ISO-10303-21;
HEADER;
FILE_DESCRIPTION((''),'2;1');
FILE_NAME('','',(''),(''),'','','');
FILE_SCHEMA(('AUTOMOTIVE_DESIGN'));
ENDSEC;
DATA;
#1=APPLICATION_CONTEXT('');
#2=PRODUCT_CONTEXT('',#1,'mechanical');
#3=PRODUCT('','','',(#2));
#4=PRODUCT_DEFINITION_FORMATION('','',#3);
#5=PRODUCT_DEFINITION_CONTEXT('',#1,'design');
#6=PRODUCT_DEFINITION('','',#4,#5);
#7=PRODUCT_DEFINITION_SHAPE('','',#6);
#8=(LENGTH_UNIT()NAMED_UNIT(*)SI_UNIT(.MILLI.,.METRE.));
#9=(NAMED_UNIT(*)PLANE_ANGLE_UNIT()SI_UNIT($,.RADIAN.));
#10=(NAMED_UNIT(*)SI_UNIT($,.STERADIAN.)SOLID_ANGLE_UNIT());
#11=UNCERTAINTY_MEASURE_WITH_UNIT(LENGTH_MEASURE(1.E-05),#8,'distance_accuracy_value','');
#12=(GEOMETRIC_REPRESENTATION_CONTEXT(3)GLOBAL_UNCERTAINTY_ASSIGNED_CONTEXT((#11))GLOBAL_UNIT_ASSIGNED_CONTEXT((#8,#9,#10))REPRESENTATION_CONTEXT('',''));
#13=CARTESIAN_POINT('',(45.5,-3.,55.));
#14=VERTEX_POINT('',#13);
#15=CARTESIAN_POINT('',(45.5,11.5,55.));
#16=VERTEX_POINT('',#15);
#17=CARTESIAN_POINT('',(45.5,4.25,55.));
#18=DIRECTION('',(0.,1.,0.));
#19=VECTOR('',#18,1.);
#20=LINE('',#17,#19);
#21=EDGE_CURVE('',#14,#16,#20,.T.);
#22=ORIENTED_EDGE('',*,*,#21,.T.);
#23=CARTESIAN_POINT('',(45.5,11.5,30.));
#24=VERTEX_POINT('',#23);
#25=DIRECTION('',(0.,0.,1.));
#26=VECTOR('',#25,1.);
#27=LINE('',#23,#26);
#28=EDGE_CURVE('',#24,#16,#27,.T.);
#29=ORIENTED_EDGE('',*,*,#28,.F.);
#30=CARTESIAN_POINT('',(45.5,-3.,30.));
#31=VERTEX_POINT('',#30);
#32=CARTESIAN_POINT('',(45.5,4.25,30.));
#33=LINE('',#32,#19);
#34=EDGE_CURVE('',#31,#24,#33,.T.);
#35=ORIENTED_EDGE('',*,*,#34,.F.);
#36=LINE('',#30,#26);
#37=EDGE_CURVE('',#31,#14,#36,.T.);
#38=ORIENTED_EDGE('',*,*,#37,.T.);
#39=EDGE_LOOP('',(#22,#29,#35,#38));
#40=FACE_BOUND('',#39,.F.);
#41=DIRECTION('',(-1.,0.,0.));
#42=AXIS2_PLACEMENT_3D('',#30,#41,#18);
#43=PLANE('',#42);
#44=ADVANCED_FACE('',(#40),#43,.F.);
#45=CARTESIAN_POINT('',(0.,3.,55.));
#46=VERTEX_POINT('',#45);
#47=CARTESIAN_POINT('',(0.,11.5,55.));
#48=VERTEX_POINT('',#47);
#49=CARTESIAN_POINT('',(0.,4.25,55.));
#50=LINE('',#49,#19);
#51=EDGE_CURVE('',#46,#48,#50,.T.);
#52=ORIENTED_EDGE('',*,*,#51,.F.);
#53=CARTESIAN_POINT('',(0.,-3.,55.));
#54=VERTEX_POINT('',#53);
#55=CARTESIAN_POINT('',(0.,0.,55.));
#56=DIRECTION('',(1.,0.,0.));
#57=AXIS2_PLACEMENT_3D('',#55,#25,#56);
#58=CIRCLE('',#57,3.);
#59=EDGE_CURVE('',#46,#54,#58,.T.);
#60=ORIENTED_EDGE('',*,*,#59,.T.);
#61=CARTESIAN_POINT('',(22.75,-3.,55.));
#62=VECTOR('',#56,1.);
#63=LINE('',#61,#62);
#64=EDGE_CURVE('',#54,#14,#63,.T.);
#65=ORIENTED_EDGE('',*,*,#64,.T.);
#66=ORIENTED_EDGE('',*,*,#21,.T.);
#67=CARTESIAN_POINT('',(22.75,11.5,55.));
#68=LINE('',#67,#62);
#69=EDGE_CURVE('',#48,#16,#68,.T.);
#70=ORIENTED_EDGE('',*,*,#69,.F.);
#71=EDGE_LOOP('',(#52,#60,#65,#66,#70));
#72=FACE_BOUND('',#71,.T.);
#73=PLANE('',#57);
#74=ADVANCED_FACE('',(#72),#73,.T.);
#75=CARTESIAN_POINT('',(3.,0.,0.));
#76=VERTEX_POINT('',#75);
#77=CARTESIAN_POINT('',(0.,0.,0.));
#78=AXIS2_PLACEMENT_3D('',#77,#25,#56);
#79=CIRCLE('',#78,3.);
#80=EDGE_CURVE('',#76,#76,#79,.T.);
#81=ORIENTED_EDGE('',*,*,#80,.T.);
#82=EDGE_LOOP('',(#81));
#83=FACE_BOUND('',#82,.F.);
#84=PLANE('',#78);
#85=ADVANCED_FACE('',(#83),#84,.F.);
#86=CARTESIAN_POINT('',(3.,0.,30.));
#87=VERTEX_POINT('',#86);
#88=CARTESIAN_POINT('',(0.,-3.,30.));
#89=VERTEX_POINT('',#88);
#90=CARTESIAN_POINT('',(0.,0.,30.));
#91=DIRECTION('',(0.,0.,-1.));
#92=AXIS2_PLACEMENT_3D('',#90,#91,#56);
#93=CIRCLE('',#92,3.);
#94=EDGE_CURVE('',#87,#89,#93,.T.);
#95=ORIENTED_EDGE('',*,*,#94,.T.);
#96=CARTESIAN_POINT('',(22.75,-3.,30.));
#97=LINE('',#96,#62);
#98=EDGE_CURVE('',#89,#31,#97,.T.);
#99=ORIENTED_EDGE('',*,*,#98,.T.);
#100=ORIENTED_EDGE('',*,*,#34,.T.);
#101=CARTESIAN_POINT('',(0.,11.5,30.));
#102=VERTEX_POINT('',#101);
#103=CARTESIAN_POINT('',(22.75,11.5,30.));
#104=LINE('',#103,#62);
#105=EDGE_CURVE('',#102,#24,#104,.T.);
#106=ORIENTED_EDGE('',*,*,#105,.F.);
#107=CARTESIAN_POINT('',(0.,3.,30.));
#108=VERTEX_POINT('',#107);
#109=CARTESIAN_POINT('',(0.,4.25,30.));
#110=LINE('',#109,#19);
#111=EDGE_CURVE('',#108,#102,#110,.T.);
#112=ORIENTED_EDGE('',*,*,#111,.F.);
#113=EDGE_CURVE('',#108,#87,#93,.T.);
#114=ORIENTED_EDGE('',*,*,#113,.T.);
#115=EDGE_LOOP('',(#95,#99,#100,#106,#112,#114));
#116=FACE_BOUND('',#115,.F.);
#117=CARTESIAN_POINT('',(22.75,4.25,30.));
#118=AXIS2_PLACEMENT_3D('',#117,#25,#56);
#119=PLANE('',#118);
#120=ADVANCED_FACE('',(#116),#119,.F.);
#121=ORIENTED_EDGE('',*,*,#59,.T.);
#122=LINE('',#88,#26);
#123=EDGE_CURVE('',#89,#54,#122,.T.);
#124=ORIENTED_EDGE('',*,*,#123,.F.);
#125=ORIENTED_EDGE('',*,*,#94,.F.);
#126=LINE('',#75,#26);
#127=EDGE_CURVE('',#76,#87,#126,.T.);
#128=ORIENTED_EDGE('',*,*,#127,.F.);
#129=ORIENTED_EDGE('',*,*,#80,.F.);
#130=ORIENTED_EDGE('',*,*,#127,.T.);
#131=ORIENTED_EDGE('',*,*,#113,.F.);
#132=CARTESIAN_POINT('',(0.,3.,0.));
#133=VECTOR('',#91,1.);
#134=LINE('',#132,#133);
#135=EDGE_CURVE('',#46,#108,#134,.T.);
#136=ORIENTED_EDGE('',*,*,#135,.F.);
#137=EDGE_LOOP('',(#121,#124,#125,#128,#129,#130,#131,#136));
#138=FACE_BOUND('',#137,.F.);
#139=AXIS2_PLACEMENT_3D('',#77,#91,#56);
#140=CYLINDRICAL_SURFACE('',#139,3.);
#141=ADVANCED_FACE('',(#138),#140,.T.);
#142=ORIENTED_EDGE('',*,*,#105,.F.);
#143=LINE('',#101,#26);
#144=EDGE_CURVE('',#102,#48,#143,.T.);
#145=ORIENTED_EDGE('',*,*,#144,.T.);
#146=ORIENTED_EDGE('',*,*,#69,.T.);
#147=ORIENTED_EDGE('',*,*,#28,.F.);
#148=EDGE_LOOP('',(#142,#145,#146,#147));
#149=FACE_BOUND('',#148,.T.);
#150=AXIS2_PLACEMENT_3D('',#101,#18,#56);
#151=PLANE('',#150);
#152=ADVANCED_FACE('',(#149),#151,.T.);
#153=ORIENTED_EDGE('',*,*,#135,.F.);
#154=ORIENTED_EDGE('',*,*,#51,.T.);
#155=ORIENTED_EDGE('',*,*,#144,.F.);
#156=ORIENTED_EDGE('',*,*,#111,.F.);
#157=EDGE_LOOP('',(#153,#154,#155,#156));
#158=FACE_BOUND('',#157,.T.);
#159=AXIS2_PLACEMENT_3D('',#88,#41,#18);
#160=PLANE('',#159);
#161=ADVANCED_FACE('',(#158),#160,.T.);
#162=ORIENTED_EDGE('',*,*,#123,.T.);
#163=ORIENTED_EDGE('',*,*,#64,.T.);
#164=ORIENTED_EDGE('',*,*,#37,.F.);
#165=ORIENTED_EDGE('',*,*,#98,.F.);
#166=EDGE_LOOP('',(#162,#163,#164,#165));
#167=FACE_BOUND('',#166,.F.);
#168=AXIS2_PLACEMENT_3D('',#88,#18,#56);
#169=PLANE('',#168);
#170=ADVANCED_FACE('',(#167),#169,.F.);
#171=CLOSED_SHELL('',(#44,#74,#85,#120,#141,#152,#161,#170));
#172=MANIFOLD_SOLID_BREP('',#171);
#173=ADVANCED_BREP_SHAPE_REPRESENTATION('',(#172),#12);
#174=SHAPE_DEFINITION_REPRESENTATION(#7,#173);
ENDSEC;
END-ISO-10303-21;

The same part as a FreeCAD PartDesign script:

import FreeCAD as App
import Part
import Sketcher

V = App.Vector
Q = App.Units.Quantity


def add_polygon(sketch, points):
    """Adds a closed chain of lines whose ends are joined by coincident constraints."""
    first, n = sketch.GeometryCount, len(points)
    for a, b in zip(points, points[1:] + points[:1]):
        sketch.addGeometry(Part.LineSegment(App.Vector(*a, 0), App.Vector(*b, 0)), False)
    for i in range(n):
        sketch.addConstraint(Sketcher.Constraint("Coincident", first + i, 2, first + (i + 1) % n, 1))

doc = App.newDocument("Part")
body = doc.addObject("PartDesign::Body", "Body")

sketch1 = body.newObject("Sketcher::SketchObject", "Sketch")
sketch1.AttachmentSupport = (doc.getObject("XY_Plane"), [""])
sketch1.MapMode = "FlatFace"
sketch1.addGeometry(Part.Circle(V(0, 0, 0), V(0, 0, 1), 3), False)
sketch1.addConstraint([
    Sketcher.Constraint("Coincident", 0, 3, -1, 1),
    Sketcher.Constraint("Diameter", 0, Q("6 mm")),
])
pad1 = body.newObject("PartDesign::Pad", "Pad")
pad1.Profile = sketch1
pad1.Length = 55
body2 = doc.addObject("PartDesign::Body", "Body001")

sketch2 = body2.newObject("Sketcher::SketchObject", "Sketch001")
sketch2.AttachmentSupport = (doc.getObject("XY_Plane001"), [""])
sketch2.MapMode = "FlatFace"
sketch2.AttachmentOffset = App.Placement(V(0, 0, 30), App.Rotation())
add_polygon(sketch2, [(0, 11.5), (0, -3), (45.5, -3), (45.5, 11.5)])
sketch2.addConstraint([
    Sketcher.Constraint("Vertical", 0),
    Sketcher.Constraint("Horizontal", 1),
    Sketcher.Constraint("Vertical", 2),
    Sketcher.Constraint("Horizontal", 3),
    Sketcher.Constraint("PointOnObject", 0, 2, -2),
    Sketcher.Constraint("DistanceX", 1, 1, 1, 2, Q("45.5 mm")),
    Sketcher.Constraint("DistanceY", 0, 2, 0, 1, Q("14.5 mm")),
    Sketcher.Constraint("DistanceY", 0, 2, -1, 1, Q("3 mm")),
])
pad2 = body2.newObject("PartDesign::Pad", "Pad001")
pad2.Profile = sketch2
pad2.Length = 25
doc.recompute()

boolean = body2.newObject("PartDesign::Boolean", "Boolean")
boolean.Type = "Fuse"
boolean.addObjects([body])

doc.recompute()
